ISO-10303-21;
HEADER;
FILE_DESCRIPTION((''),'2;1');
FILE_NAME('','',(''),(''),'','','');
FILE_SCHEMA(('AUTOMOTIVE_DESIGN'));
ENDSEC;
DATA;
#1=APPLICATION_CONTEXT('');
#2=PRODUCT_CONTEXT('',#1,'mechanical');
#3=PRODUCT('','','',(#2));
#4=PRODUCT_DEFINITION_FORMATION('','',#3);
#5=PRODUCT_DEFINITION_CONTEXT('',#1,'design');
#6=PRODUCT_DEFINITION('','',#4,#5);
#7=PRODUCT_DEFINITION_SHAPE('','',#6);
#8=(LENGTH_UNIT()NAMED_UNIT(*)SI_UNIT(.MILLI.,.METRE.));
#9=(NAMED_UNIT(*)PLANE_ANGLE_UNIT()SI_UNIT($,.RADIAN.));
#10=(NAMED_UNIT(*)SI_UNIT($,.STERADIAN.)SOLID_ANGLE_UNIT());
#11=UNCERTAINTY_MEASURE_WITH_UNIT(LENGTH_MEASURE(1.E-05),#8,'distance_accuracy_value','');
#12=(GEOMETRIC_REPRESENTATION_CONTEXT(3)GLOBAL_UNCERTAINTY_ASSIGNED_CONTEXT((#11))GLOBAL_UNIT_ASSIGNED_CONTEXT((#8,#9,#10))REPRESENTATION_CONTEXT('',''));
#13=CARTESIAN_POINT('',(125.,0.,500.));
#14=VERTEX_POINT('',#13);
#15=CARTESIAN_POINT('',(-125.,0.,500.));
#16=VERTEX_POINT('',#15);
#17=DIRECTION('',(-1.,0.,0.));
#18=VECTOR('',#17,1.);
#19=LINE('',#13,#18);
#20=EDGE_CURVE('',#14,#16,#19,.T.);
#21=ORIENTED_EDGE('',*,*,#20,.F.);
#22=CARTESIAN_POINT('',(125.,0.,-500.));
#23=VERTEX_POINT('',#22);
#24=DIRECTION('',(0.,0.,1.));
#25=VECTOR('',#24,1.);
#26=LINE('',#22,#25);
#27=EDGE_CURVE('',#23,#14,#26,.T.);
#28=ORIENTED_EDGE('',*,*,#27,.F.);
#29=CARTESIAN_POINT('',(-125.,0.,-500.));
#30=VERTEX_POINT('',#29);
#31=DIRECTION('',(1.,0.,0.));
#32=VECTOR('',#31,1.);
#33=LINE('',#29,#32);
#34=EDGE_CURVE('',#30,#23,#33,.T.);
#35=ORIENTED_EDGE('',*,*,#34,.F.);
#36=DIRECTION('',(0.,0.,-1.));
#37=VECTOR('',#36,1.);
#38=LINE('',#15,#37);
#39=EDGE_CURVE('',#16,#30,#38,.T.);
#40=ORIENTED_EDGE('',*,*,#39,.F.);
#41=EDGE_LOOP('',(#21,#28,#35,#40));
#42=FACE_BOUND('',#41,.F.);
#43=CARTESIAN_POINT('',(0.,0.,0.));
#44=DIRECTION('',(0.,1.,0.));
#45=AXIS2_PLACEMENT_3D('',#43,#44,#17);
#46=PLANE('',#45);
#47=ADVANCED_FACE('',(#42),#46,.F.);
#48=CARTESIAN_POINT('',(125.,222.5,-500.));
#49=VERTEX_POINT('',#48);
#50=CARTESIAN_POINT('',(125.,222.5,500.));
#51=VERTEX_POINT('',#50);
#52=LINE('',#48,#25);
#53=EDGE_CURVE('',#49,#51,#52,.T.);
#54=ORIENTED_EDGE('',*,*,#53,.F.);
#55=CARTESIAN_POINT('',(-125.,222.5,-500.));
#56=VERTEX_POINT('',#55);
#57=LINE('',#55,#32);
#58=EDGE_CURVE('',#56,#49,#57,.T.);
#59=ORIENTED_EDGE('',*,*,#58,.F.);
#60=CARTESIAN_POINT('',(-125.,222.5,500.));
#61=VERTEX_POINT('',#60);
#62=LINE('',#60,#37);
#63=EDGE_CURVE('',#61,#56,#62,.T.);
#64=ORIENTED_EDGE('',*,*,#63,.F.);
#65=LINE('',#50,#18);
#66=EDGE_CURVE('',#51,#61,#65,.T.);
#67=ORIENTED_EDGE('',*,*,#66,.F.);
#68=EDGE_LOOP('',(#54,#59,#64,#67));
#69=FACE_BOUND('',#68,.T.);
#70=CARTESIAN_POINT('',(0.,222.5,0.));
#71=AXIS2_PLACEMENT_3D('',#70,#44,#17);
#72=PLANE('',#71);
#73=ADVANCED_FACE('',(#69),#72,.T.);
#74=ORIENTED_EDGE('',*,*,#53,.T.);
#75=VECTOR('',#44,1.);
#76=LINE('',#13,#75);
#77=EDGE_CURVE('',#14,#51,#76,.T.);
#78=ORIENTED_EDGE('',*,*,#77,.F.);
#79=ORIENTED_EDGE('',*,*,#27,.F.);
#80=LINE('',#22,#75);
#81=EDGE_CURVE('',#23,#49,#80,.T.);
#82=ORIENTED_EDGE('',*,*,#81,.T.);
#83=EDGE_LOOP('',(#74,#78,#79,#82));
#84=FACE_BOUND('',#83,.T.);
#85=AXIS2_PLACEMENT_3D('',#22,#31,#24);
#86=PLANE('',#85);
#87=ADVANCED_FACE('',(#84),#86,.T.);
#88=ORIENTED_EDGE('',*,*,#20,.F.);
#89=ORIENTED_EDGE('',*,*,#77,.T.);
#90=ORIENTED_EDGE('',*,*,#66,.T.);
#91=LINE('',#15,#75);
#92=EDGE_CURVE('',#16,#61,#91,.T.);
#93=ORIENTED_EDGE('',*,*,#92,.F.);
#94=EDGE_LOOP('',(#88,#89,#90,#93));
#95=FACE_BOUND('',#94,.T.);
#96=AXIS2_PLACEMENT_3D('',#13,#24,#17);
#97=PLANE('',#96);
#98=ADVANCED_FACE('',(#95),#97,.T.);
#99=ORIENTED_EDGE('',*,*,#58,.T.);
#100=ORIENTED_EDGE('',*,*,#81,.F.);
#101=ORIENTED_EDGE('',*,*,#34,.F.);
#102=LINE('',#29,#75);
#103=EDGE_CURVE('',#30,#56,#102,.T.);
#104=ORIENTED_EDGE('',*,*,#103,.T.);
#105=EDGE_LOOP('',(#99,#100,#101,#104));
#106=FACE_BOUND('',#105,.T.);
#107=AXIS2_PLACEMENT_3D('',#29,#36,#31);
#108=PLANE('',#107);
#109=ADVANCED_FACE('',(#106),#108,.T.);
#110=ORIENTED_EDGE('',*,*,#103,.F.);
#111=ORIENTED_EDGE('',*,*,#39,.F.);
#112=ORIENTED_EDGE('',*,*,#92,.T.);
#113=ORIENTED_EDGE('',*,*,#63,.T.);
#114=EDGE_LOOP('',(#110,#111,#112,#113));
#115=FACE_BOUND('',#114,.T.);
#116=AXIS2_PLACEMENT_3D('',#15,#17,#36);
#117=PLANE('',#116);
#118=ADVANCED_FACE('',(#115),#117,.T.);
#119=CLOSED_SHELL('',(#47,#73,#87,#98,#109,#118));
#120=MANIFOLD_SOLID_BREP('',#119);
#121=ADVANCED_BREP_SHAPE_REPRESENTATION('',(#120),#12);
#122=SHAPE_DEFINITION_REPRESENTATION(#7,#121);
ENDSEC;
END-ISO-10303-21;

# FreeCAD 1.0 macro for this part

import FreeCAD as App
import Part
import Sketcher
from FreeCAD import Vector
Q = App.Units.Quantity


def add_polygon(sketch, points):
    """Adds a closed chain of lines whose ends are joined by coincident constraints."""
    first, n = sketch.GeometryCount, len(points)
    for a, b in zip(points, points[1:] + points[:1]):
        sketch.addGeometry(Part.LineSegment(App.Vector(*a, 0), App.Vector(*b, 0)), False)
    for i in range(n):
        sketch.addConstraint(Sketcher.Constraint("Coincident", first + i, 2, first + (i + 1) % n, 1))

doc = App.newDocument("Part")
body = doc.addObject("PartDesign::Body", "Body")

# Sketch on XZ plane
sketch1 = body.newObject("Sketcher::SketchObject", "Sketch")
sketch1.AttachmentSupport = (doc.getObject("XZ_Plane"), [""])
sketch1.MapMode = "FlatFace"
add_polygon(sketch1, [(-125, 500), (125, 500), (125, -500), (-125, -500)])  # lines 0-3
sketch1.addConstraint([
    Sketcher.Constraint("Horizontal", 0),
    Sketcher.Constraint("Vertical", 1),
    Sketcher.Constraint("Horizontal", 2),
    Sketcher.Constraint("Vertical", 3),
    Sketcher.Constraint("Symmetric", 0, 2, 2, 2, -1, 1),
    Sketcher.Constraint("DistanceX", 0, 1, 0, 2, Q("250 mm")),
    Sketcher.Constraint("DistanceY", 1, 2, 1, 1, Q("1000 mm")),
])
pad1 = body.newObject("PartDesign::Pad", "Pad")
pad1.Profile = sketch1
pad1.Length = 222.5
pad1.Reversed = True

doc.recompute()
